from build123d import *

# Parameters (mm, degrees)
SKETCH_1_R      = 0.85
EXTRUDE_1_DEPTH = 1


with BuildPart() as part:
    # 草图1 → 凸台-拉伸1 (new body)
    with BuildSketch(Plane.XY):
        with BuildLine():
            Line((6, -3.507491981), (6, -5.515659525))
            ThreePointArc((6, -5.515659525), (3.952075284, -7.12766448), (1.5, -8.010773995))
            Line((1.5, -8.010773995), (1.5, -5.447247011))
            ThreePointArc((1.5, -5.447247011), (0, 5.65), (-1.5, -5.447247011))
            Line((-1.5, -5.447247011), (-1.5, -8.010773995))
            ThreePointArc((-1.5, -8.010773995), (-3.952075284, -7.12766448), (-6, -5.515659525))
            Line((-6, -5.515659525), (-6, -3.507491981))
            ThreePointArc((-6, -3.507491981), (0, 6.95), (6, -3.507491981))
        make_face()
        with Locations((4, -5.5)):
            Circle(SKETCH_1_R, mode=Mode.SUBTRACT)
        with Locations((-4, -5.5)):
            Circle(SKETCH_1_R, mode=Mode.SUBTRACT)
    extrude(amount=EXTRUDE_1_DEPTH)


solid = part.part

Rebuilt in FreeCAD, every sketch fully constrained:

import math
import FreeCAD as App
import Part
import Sketcher

V = App.Vector
Q = App.Units.Quantity

doc = App.newDocument("Part")
body = doc.addObject("PartDesign::Body", "Body")

sketch1 = doc.addObject("Sketcher::SketchObject", "Sketch")
body.addObject(sketch1)
sketch1.AttachmentSupport = (doc.XY_Plane, [""])
sketch1.MapMode = "FlatFace"
sketch1.addGeometry([
    Part.LineSegment(V(6, -5.5, 0), V(6, -3.5, 0)),
    Part.ArcOfCircle(Part.Circle(V(0, 0, 0), V(0, 0, 1), 7), math.radians(-30), math.radians(210)),
    Part.LineSegment(V(-6, -3.5, 0), V(-6, -5.5, 0)),
    Part.ArcOfCircle(Part.Circle(V(0, 0, 0), V(0, 0, 1), 8.2), math.radians(-137), math.radians(-101)),
    Part.LineSegment(V(-1.5, -8, 0), V(-1.5, -5.4, 0)),
    Part.ArcOfCircle(Part.Circle(V(0, 0, 0), V(0, 0, 1), 5.7), math.radians(-75), math.radians(255)),
    Part.LineSegment(V(1.5, -5.4, 0), V(1.5, -8, 0)),
    Part.ArcOfCircle(Part.Circle(V(0, 0, 0), V(0, 0, 1), 8.2), math.radians(-79), math.radians(-43)),
    Part.Circle(V(4, -5.5, 0), V(0, 0, 1), 0.8),
    Part.Circle(V(-4, -5.5, 0), V(0, 0, 1), 0.8),
], False)
sketch1.addConstraint([
    Sketcher.Constraint("Coincident", 0, 2, 1, 1),
    Sketcher.Constraint("Coincident", 1, 2, 2, 1),
    Sketcher.Constraint("Coincident", 2, 2, 3, 1),
    Sketcher.Constraint("Coincident", 3, 2, 4, 1),
    Sketcher.Constraint("Coincident", 4, 2, 5, 2),
    Sketcher.Constraint("Coincident", 5, 1, 6, 1),
    Sketcher.Constraint("Coincident", 6, 2, 7, 1),
    Sketcher.Constraint("Coincident", 7, 2, 0, 1),
    Sketcher.Constraint("Vertical", 0),
    Sketcher.Constraint("Vertical", 2),
    Sketcher.Constraint("Vertical", 4),
    Sketcher.Constraint("Vertical", 6),
    Sketcher.Constraint("Coincident", 1, 3, -1, 1),
    Sketcher.Constraint("Coincident", 3, 3, -1, 1),
    Sketcher.Constraint("Coincident", 5, 3, -1, 1),
    Sketcher.Constraint("Coincident", 7, 3, -1, 1),
    Sketcher.Constraint("Equal", 3, 7),
    Sketcher.Constraint("Equal", 8, 9),
    Sketcher.Constraint("Symmetric", 8, 3, 9, 3, -2),
    Sketcher.Constraint("Horizontal", 0, 2, 1, 2),
    Sketcher.Constraint("Horizontal", 4, 2, 5, 1),
    Sketcher.Constraint("Diameter", 8, Q("1.7 mm")),
    Sketcher.Constraint("Radius", 1, Q("6.95 mm")),
    Sketcher.Constraint("Radius", 3, Q("8.15 mm")),
    Sketcher.Constraint("Radius", 5, Q("5.65 mm")),
    Sketcher.Constraint("DistanceX", -1, 1, 8, 3, Q("4 mm")),
    Sketcher.Constraint("DistanceX", -1, 1, 0, 2, Q("6 mm")),
    Sketcher.Constraint("DistanceX", 4, 2, 5, 1, Q("3 mm")),
    Sketcher.Constraint("DistanceY", 8, 3, -1, 1, Q("5.5 mm")),
])
pad1 = doc.addObject("PartDesign::Pad", "Pad")
body.addObject(pad1)
pad1.Profile = sketch1
pad1.Length = 1

doc.recompute()
